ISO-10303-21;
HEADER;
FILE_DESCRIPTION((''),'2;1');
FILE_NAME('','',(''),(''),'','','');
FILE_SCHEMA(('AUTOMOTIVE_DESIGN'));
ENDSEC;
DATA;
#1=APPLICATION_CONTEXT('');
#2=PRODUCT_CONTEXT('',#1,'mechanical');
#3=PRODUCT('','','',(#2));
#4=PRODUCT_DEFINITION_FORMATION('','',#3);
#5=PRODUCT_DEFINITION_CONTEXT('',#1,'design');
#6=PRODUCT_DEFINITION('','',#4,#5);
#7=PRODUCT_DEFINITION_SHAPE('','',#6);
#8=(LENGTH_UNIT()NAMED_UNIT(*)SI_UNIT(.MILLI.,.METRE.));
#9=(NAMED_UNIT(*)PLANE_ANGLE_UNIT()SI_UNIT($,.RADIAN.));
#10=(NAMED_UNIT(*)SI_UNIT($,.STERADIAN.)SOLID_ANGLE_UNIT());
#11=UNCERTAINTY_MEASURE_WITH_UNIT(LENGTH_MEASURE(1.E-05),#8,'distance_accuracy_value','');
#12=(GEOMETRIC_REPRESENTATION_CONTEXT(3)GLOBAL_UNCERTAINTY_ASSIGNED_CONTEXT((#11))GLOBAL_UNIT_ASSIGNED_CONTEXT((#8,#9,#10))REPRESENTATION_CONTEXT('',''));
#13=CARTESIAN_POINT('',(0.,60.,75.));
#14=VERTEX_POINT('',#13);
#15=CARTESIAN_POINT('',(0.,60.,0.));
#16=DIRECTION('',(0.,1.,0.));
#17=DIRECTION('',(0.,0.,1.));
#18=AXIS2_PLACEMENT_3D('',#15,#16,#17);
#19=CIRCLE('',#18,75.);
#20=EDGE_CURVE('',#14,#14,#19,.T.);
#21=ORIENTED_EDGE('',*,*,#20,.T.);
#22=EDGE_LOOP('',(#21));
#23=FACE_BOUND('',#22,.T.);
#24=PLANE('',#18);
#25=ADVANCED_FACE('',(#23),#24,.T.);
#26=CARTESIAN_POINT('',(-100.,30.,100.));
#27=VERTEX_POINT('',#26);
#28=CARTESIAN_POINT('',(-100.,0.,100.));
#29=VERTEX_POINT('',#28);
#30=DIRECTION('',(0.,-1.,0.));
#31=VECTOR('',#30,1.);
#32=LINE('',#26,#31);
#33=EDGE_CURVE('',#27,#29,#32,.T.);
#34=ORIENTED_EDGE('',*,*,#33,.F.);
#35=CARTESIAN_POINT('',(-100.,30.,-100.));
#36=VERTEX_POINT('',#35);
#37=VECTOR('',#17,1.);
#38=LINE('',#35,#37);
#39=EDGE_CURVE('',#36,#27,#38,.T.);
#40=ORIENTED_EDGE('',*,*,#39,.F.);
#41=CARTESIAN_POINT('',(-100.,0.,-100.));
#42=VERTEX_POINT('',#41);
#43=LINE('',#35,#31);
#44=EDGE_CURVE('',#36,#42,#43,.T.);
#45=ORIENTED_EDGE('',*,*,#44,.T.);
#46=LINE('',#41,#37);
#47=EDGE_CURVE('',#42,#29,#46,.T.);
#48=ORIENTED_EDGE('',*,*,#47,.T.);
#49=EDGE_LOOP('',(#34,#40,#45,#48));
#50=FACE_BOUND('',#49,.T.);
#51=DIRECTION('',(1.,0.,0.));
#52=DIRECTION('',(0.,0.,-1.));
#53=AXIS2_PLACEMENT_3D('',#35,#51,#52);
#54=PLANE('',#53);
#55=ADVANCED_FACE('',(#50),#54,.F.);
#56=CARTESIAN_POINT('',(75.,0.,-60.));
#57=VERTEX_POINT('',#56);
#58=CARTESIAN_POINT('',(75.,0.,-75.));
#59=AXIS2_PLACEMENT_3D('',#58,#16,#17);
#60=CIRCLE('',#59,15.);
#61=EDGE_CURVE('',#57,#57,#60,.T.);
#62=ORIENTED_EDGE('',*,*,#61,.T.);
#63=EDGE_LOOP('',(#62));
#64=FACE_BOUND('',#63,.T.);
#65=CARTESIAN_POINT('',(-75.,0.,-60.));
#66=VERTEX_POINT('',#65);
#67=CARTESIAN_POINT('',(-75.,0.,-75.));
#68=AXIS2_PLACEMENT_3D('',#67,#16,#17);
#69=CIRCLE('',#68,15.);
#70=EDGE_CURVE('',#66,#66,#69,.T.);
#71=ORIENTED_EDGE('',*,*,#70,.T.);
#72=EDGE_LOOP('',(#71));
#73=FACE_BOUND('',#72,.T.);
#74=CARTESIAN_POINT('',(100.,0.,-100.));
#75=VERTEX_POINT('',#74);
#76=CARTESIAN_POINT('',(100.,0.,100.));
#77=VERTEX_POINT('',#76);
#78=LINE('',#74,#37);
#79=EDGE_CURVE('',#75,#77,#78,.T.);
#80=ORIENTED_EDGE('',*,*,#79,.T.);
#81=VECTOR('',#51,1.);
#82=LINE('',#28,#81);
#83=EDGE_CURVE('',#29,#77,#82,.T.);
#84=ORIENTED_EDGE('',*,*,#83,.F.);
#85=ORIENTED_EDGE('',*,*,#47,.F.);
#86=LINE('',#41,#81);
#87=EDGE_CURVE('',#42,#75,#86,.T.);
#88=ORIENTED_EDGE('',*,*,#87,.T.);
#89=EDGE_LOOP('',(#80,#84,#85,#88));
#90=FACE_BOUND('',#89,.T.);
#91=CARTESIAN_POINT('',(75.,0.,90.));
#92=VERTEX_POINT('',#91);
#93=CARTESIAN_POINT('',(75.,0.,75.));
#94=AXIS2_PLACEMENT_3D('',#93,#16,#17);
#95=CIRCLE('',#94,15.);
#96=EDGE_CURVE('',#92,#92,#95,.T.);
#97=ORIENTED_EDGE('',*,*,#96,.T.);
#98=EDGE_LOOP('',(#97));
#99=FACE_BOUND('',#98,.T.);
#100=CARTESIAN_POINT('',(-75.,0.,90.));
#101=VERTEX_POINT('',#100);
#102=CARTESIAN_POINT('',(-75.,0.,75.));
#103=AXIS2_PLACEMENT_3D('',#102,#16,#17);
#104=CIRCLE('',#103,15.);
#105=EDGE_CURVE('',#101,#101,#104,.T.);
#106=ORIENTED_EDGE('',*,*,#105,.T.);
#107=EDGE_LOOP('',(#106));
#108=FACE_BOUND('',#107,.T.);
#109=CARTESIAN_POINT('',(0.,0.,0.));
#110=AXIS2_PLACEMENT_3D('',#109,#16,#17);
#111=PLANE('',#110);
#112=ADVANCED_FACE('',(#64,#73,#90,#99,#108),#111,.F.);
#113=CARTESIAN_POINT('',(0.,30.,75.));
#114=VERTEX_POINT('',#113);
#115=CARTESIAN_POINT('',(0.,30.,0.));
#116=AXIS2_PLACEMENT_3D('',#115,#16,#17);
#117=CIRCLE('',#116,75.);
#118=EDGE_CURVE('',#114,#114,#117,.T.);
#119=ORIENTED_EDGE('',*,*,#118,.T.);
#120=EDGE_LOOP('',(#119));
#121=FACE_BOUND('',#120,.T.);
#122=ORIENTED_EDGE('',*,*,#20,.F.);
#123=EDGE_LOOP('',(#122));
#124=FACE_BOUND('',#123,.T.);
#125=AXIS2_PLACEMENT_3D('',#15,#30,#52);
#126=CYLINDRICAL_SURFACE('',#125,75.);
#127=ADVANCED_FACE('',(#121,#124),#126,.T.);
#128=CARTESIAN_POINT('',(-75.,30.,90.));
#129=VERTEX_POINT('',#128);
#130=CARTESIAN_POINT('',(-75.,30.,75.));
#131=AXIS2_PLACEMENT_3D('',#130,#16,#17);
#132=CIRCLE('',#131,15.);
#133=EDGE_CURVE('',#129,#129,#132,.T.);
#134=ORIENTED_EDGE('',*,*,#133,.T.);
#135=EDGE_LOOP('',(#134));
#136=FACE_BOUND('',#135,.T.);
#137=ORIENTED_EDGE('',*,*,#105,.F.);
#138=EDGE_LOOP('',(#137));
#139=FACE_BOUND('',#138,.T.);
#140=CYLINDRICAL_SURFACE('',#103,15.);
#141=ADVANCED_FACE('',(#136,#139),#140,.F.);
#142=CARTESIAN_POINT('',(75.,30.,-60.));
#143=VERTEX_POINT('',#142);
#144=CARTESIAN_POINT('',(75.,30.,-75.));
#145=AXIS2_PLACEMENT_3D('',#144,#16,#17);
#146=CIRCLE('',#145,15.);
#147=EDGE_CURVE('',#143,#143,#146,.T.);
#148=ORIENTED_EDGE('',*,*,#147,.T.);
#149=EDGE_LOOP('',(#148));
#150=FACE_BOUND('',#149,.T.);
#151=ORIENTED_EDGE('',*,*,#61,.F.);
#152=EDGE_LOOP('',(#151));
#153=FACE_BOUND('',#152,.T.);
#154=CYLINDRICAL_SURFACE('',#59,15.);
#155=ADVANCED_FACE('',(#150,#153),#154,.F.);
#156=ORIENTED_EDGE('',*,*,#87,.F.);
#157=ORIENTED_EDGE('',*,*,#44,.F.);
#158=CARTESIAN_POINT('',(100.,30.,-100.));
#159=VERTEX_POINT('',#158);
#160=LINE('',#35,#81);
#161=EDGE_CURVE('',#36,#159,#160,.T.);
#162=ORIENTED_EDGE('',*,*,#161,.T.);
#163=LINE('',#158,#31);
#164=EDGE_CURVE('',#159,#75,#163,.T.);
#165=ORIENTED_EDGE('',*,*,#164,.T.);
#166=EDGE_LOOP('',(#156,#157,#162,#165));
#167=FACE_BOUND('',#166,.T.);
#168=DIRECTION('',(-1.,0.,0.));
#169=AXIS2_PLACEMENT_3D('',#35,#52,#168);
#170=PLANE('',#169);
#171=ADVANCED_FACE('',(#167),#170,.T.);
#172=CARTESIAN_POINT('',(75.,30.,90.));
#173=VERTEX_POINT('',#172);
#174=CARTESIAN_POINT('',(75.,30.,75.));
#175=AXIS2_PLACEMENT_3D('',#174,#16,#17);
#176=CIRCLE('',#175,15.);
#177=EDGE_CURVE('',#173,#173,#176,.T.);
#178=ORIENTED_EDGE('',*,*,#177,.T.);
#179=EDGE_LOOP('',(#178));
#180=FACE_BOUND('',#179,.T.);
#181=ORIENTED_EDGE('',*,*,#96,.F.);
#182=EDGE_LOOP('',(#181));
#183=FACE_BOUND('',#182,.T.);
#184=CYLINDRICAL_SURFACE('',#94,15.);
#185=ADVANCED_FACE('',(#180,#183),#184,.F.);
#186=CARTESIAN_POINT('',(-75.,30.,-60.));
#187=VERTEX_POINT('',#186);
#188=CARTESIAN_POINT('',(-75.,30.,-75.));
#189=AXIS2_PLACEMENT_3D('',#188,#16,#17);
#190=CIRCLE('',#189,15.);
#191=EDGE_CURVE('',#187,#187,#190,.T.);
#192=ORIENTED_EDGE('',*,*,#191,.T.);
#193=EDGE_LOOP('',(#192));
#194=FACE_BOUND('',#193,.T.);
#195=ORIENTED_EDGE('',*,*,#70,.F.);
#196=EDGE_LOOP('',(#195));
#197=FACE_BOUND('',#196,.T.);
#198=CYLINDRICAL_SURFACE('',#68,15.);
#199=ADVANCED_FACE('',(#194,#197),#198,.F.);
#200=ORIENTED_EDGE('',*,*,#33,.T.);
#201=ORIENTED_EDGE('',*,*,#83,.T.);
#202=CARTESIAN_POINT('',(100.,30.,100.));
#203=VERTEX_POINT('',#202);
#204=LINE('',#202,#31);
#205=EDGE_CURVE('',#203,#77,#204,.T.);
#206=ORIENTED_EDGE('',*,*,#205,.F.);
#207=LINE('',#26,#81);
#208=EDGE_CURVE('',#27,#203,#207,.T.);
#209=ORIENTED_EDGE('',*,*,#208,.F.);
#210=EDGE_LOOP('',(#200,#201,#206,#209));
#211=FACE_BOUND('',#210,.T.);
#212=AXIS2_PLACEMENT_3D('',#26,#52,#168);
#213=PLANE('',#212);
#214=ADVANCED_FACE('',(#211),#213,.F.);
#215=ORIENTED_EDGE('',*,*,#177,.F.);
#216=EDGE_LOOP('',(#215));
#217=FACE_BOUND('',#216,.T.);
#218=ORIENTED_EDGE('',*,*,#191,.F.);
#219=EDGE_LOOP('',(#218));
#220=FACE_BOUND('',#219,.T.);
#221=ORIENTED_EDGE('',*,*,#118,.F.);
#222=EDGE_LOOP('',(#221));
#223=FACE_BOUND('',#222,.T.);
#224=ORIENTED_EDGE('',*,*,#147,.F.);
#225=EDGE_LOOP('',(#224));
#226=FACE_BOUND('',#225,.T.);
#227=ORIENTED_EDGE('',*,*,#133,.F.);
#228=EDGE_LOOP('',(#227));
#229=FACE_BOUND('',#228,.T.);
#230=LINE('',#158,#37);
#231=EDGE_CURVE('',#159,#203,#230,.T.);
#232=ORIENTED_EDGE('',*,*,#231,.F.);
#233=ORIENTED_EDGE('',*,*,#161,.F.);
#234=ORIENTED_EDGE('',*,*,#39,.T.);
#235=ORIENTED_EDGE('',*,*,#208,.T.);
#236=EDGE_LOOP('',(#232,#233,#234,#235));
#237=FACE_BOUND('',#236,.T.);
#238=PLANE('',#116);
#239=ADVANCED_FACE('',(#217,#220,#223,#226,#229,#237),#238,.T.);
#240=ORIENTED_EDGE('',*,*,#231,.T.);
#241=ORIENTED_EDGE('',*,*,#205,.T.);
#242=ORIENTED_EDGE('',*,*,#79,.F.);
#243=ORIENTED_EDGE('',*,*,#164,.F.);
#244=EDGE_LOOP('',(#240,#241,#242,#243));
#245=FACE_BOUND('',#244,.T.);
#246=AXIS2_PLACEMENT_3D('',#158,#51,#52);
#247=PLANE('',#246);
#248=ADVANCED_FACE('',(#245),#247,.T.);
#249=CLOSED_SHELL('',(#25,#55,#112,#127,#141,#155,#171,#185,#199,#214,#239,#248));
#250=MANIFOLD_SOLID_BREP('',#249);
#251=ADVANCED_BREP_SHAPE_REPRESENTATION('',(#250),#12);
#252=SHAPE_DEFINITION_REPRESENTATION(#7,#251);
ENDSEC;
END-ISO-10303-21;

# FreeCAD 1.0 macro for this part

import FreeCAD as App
import Part
import Sketcher

V = App.Vector


def add_polygon(sketch, points):
    """Adds a closed chain of lines whose ends are joined by coincident constraints."""
    first, n = sketch.GeometryCount, len(points)
    for a, b in zip(points, points[1:] + points[:1]):
        sketch.addGeometry(Part.LineSegment(App.Vector(*a, 0), App.Vector(*b, 0)), False)
    for i in range(n):
        sketch.addConstraint(Sketcher.Constraint("Coincident", first + i, 2, first + (i + 1) % n, 1))

doc = App.newDocument("Part")
body = doc.addObject("PartDesign::Body", "Body")

# Sketch on XZ plane
sketch1 = body.newObject("Sketcher::SketchObject", "Sketch")
sketch1.AttachmentSupport = (doc.getObject("XZ_Plane"), [""])
sketch1.MapMode = "FlatFace"
add_polygon(sketch1, [(-100, -100), (-100, 100), (100, 100), (100, -100)])  # lines 0-3
sketch1.addConstraint(Sketcher.Constraint("Vertical", 0))
sketch1.addConstraint(Sketcher.Constraint("Horizontal", 1))
sketch1.addConstraint(Sketcher.Constraint("Vertical", 2))
sketch1.addConstraint(Sketcher.Constraint("Horizontal", 3))
sketch1.addConstraint(Sketcher.Constraint("Symmetric", 0, 2, 2, 2, -1, 1))
sketch1.addConstraint(Sketcher.Constraint("Equal", 3, 0))
sketch1.addConstraint(Sketcher.Constraint("DistanceX", 1, 1, 1, 2, 200.0))
pad1 = body.newObject("PartDesign::Pad", "Pad")
pad1.Profile = sketch1
pad1.Length = 30
pad1.Reversed = True

# Sketch on XZ plane
sketch2 = body.newObject("Sketcher::SketchObject", "Sketch001")
sketch2.AttachmentSupport = (doc.getObject("XZ_Plane"), [""])
sketch2.MapMode = "FlatFace"
sketch2.AttachmentOffset = App.Placement(V(0, 0, -30), App.Rotation())
sketch2.addGeometry(Part.Circle(V(0, 0, 0), V(0, 0, 1), 75), False)
sketch2.addConstraint(Sketcher.Constraint("Coincident", 0, 3, -1, 1))
sketch2.addConstraint(Sketcher.Constraint("Diameter", 0, 150.0))
pad2 = body.newObject("PartDesign::Pad", "Pad001")
pad2.Profile = sketch2
pad2.Length = 30
pad2.Reversed = True

# Sketch on XZ plane
sketch3 = body.newObject("Sketcher::SketchObject", "Sketch002")
sketch3.AttachmentSupport = (doc.getObject("XZ_Plane"), [""])
sketch3.MapMode = "FlatFace"
sketch3.AttachmentOffset = App.Placement(V(0, 0, -30), App.Rotation())
sketch3.addGeometry(Part.Circle(V(-75, -75, 0), V(0, 0, 1), 15), False)
sketch3.addGeometry(Part.Circle(V(-75, 75, 0), V(0, 0, 1), 15), False)
sketch3.addGeometry(Part.Circle(V(75, -75, 0), V(0, 0, 1), 15), False)
sketch3.addGeometry(Part.Circle(V(75, 75, 0), V(0, 0, 1), 15), False)
sketch3.addConstraint(Sketcher.Constraint("Equal", 0, 1))
sketch3.addConstraint(Sketcher.Constraint("Equal", 1, 2))
sketch3.addConstraint(Sketcher.Constraint("Equal", 2, 3))
sketch3.addConstraint(Sketcher.Constraint("Symmetric", 1, 3, 2, 3, -1, 1))
sketch3.addConstraint(Sketcher.Constraint("Symmetric", 0, 3, 3, 3, -1, 1))
sketch3.addConstraint(Sketcher.Constraint("Symmetric", 0, 3, 2, 3, -2))
sketch3.addConstraint(Sketcher.Constraint("Diameter", 0, 30.0))
sketch3.addConstraint(Sketcher.Constraint("DistanceX", 0, 3, -1, 1, 75.0))
sketch3.addConstraint(Sketcher.Constraint("DistanceY", 0, 3, -1, 1, 75.0))
pocket1 = body.newObject("PartDesign::Pocket", "Pocket")
pocket1.Profile = sketch3
pocket1.Length = 30
pocket1.Reversed = True

doc.recompute()
